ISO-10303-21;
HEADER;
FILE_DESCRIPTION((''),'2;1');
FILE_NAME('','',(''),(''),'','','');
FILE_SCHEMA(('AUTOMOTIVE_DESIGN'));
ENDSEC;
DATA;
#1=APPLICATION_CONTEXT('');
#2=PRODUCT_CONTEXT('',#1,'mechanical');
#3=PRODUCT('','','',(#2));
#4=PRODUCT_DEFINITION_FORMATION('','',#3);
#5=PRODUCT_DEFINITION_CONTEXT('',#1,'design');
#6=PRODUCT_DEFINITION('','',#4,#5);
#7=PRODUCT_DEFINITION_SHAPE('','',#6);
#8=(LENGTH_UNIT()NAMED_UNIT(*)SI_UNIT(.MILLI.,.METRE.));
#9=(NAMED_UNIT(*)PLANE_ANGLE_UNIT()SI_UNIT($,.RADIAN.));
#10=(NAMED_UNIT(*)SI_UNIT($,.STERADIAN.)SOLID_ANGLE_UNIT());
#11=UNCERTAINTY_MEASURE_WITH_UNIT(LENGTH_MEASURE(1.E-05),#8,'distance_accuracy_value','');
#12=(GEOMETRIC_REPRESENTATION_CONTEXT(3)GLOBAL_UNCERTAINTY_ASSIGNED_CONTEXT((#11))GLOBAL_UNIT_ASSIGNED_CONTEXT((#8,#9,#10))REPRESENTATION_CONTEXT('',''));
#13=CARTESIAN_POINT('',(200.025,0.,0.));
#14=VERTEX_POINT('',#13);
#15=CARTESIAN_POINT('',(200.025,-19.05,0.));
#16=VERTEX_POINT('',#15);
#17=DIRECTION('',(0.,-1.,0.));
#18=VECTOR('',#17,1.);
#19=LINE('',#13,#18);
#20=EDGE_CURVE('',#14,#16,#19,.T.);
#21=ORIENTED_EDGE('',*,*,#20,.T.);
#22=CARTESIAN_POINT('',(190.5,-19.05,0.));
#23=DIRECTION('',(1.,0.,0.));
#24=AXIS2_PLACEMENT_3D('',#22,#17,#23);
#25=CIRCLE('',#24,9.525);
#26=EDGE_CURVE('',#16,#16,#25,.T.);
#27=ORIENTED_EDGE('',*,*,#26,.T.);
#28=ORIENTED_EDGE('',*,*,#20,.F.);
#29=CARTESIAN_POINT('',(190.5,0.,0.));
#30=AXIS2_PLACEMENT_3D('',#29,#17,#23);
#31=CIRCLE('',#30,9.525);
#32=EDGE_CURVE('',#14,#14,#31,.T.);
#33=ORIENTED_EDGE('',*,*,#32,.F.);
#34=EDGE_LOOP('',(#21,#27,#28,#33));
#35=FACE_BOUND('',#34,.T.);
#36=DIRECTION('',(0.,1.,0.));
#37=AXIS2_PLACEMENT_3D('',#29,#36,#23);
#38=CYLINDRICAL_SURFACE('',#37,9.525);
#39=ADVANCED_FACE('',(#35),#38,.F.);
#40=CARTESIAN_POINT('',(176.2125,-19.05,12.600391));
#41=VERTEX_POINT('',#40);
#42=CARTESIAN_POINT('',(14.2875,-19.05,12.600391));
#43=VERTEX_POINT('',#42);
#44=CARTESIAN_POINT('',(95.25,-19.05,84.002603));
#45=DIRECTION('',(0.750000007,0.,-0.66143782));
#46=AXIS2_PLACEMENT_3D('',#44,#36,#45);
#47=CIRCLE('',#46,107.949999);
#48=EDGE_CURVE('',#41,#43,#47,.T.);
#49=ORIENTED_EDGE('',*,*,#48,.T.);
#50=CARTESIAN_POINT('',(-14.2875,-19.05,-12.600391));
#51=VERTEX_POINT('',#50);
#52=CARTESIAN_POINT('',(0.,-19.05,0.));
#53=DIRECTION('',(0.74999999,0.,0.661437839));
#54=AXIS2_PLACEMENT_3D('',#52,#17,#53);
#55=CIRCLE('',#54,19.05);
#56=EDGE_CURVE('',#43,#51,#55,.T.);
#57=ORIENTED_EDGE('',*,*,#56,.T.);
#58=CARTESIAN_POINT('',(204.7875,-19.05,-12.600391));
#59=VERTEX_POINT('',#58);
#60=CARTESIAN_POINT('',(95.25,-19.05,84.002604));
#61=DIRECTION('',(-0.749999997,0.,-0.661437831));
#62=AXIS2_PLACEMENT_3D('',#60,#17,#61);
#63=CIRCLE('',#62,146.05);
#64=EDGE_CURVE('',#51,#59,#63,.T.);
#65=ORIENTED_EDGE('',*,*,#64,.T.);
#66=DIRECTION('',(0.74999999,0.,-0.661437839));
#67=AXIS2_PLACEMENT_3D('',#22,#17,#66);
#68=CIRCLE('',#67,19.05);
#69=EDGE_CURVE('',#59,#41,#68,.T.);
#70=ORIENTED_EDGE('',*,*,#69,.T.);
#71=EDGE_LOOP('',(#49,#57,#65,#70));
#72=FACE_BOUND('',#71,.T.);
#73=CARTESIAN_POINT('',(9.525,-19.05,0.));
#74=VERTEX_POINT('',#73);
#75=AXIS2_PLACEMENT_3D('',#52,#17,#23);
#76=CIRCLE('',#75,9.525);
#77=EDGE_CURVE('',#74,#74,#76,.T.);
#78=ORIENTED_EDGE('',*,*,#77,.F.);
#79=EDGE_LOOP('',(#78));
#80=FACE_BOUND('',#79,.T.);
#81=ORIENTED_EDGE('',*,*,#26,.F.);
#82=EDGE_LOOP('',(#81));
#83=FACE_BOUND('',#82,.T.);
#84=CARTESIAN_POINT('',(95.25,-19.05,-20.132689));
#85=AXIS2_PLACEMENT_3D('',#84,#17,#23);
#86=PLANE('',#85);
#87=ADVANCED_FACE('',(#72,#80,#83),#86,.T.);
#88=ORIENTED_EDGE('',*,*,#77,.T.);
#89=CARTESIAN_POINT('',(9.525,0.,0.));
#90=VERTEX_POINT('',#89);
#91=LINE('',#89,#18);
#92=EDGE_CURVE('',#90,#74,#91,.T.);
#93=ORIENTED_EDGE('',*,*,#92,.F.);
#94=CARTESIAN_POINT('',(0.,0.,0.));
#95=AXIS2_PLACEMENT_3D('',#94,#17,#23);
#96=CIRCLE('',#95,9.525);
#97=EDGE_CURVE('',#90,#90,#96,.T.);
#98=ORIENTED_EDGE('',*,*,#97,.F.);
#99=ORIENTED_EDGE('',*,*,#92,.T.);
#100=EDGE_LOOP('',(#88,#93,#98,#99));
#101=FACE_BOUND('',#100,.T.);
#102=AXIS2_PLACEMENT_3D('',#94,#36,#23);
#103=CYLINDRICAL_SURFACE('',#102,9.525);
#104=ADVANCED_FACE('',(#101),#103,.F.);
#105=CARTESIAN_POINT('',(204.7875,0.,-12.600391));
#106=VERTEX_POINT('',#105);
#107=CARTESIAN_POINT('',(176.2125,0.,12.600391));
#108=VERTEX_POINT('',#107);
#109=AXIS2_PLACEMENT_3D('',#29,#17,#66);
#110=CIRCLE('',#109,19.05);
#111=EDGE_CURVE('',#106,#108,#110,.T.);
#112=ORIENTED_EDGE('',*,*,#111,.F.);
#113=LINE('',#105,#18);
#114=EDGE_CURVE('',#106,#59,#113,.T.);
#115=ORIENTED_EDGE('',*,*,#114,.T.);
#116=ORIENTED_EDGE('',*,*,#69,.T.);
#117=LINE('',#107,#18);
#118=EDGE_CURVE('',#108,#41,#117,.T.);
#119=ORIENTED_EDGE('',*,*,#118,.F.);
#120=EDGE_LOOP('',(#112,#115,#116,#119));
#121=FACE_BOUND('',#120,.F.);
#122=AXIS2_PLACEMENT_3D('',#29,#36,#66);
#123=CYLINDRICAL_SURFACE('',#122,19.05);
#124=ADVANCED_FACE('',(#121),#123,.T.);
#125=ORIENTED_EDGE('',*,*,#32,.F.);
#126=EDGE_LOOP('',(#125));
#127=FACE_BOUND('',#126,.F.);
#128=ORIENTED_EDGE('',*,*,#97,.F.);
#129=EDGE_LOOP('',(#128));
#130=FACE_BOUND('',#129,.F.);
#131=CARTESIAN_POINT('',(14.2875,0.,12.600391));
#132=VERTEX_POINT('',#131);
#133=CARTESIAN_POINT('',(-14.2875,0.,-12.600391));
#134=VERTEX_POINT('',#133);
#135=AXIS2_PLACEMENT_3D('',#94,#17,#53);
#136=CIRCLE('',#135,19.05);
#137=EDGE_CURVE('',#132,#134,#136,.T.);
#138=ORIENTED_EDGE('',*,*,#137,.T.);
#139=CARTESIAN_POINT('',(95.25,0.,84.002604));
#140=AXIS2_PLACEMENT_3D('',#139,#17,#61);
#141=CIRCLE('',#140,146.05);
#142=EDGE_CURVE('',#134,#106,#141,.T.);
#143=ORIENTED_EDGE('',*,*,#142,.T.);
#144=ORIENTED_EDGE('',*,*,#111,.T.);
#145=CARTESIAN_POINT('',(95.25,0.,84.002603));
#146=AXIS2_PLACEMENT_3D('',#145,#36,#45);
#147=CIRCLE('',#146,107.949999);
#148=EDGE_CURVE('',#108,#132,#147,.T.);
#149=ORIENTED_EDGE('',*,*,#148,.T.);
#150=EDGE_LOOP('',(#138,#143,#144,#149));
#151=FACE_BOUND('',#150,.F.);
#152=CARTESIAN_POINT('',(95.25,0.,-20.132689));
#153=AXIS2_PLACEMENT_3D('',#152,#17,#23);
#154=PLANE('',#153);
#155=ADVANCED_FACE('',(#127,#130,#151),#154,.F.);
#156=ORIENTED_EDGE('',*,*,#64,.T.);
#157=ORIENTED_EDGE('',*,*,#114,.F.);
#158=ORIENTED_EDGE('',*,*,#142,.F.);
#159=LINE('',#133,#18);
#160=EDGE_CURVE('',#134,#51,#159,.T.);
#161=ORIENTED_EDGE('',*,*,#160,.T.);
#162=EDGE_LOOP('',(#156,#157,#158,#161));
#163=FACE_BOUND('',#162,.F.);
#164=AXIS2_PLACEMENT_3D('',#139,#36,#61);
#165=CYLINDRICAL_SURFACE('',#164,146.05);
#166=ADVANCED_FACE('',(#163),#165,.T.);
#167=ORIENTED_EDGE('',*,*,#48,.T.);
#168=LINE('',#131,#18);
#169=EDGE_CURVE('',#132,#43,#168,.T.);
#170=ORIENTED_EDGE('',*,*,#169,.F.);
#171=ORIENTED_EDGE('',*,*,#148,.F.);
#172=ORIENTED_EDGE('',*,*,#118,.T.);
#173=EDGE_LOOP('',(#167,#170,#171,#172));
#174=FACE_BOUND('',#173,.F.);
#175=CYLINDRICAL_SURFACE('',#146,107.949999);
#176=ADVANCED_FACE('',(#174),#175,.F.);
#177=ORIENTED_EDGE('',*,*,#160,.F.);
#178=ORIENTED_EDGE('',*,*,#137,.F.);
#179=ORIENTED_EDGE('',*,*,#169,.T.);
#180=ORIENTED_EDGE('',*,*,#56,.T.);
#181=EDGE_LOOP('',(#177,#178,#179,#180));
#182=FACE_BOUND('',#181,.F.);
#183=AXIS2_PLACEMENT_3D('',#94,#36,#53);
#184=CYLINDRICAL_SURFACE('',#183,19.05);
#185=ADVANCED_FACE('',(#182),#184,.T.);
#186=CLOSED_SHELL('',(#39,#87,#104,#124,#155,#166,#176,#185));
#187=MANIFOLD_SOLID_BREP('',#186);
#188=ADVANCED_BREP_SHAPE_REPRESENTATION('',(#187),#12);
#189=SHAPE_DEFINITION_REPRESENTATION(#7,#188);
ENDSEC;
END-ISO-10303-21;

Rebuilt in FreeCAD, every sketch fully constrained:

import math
import FreeCAD as App
import Part
import Sketcher

V = App.Vector
Q = App.Units.Quantity

doc = App.newDocument("Part")
params = doc.addObject("Spreadsheet::Sheet", "Params")
for row, (alias, value) in enumerate([
    ("sketch1_diameter", "0.75 in"),
    ("sketch1_radius", "0.75 in"),
    ("sketch1_radius2", "5.75 in"),
    ("pad1_length", "0.75 in"),
], start=1):
    params.set(f"A{row}", alias)
    params.set(f"B{row}", "=" + value)
    params.setAlias(f"B{row}", alias)

body = doc.addObject("PartDesign::Body", "Body")

# Sketch on XZ plane
sketch1 = doc.addObject("Sketcher::SketchObject", "Sketch")
body.addObject(sketch1)
sketch1.AttachmentSupport = (doc.XZ_Plane, [""])
sketch1.MapMode = "FlatFace"
sketch1.addGeometry(Part.ArcOfCircle(Part.Circle(V(0, 0, 0), V(0, 0, 1), 19), math.radians(41), math.radians(221)), False)
sketch1.addGeometry(Part.ArcOfCircle(Part.Circle(V(95, 84, 0), V(0, 0, 1), 146), math.radians(-139), math.radians(-41)), False)
sketch1.addGeometry(Part.ArcOfCircle(Part.Circle(V(190, 0, 0), V(0, 0, 1), 19), math.radians(-41), math.radians(139)), False)
sketch1.addGeometry(Part.ArcOfCircle(Part.Circle(V(95, 84, 0), V(0, 0, 1), 108), math.radians(-139), math.radians(-41)), False)
sketch1.addGeometry(Part.Circle(V(0, 0, 0), V(0, 0, 1), 10), False)
sketch1.addGeometry(Part.Circle(V(190, 0, 0), V(0, 0, 1), 10), False)
sketch1.addConstraint(Sketcher.Constraint("Tangent", 0, 2, 1, 1))
sketch1.addConstraint(Sketcher.Constraint("Tangent", 1, 2, 2, 1))
sketch1.addConstraint(Sketcher.Constraint("Tangent", 2, 2, 3, 2))
sketch1.addConstraint(Sketcher.Constraint("Tangent", 3, 1, 0, 1))
sketch1.addConstraint(Sketcher.Constraint("Coincident", 0, 3, -1, 1))
sketch1.addConstraint(Sketcher.Constraint("Coincident", 4, 3, -1, 1))
sketch1.addConstraint(Sketcher.Constraint("Coincident", 3, 3, 1, 3))
sketch1.addConstraint(Sketcher.Constraint("Coincident", 5, 3, 2, 3))
sketch1.addConstraint(Sketcher.Constraint("Equal", 4, 5))
sketch1.addConstraint(Sketcher.Constraint("PointOnObject", 2, 3, -1))
sketch1.addConstraint(Sketcher.Constraint("Diameter", 4, Q("0.75 in")))
sketch1.addConstraint(Sketcher.Constraint("Radius", 0, Q("0.75 in")))
sketch1.addConstraint(Sketcher.Constraint("Radius", 1, Q("5.75 in")))
sketch1.addConstraint(Sketcher.Constraint("DistanceX", -1, 1, 2, 3, Q("7.5 in")))
sketch1.setExpression("Constraints[10]", "Params.sketch1_diameter")
sketch1.setExpression("Constraints[11]", "Params.sketch1_radius")
sketch1.setExpression("Constraints[12]", "Params.sketch1_radius2")
pad1 = doc.addObject("PartDesign::Pad", "Pad")
body.addObject(pad1)
pad1.Profile = sketch1
pad1.setExpression("Length", "Params.pad1_length")

doc.recompute()
